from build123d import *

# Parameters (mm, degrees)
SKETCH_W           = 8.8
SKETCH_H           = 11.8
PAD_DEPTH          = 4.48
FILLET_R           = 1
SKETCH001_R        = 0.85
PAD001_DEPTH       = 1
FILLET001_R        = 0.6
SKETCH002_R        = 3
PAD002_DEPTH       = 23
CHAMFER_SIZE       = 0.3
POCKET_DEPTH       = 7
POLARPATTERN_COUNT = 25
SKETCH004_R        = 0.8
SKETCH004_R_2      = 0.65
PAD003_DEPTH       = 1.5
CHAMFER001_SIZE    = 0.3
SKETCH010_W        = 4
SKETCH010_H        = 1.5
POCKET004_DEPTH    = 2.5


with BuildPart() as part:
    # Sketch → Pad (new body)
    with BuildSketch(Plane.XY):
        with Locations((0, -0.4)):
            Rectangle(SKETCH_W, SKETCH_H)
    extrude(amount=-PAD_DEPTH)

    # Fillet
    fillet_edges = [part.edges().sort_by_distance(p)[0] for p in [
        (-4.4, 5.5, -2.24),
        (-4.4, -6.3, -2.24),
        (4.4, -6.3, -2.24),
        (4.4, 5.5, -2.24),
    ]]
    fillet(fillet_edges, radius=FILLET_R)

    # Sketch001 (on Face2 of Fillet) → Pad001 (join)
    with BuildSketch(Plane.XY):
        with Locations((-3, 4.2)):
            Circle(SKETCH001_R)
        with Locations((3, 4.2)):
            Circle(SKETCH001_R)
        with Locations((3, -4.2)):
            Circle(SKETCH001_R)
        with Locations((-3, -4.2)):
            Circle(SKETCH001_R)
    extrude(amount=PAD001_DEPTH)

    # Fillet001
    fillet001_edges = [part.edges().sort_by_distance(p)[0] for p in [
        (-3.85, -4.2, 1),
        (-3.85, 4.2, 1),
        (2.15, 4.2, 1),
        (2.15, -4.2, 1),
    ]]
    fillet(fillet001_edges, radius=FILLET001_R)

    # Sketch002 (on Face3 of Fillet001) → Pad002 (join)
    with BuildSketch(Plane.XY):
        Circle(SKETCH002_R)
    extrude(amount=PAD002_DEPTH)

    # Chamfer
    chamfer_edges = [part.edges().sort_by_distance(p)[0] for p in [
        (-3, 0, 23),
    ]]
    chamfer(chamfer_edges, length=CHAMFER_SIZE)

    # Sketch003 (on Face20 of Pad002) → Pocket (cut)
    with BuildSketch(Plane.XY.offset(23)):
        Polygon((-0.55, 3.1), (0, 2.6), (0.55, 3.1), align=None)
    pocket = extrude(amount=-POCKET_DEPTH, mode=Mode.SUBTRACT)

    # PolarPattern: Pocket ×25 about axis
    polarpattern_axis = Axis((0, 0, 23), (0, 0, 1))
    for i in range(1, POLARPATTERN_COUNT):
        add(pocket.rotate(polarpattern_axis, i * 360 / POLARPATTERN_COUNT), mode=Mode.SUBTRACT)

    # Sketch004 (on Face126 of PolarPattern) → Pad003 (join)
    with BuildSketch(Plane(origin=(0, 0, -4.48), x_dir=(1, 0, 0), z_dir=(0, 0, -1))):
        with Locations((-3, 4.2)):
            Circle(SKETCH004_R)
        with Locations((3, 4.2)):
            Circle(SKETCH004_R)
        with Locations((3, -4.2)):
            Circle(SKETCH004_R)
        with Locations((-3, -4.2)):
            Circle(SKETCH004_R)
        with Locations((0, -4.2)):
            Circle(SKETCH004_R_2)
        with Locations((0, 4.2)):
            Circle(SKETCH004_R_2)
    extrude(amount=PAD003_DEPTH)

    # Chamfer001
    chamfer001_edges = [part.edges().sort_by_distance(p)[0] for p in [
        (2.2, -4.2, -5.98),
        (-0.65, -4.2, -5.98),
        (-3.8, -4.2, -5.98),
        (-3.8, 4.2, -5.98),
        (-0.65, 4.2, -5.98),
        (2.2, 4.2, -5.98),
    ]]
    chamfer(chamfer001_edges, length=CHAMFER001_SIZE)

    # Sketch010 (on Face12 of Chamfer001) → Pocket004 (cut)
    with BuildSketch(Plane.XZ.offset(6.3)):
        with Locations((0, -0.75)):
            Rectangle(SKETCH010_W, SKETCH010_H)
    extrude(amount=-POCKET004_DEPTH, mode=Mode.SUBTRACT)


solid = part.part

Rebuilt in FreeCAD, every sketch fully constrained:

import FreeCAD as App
import Part
import Sketcher
from FreeCAD import Vector


def edges_at(feature, points):
    """Names of the edges that pass closest to the given points."""
    edges = feature.Shape.Edges
    near = lambda p: min(range(len(edges)), key=lambda i: edges[i].distToShape(Part.Vertex(*p))[0])
    return sorted({f"Edge{near(p) + 1}" for p in points})


def add_polygon(sketch, points):
    """Adds a closed chain of lines whose ends are joined by coincident constraints."""
    first, n = sketch.GeometryCount, len(points)
    for a, b in zip(points, points[1:] + points[:1]):
        sketch.addGeometry(Part.LineSegment(App.Vector(*a, 0), App.Vector(*b, 0)), False)
    for i in range(n):
        sketch.addConstraint(Sketcher.Constraint("Coincident", first + i, 2, first + (i + 1) % n, 1))

doc = App.newDocument("Part")
body = doc.addObject("PartDesign::Body", "Body")

# Sketch on XY plane
sketch1 = body.newObject("Sketcher::SketchObject", "Sketch")
sketch1.AttachmentSupport = (doc.getObject("XY_Plane"), [""])
sketch1.MapMode = "FlatFace"
add_polygon(sketch1, [(-4, 6), (-4, -6), (4, -6), (4, 6)])  # lines 0-3
sketch1.addConstraint(Sketcher.Constraint("Vertical", 0))
sketch1.addConstraint(Sketcher.Constraint("Horizontal", 1))
sketch1.addConstraint(Sketcher.Constraint("Vertical", 2))
sketch1.addConstraint(Sketcher.Constraint("Horizontal", 3))
sketch1.addConstraint(Sketcher.Constraint("DistanceX", 1, 1, 1, 2, 8.8))
sketch1.addConstraint(Sketcher.Constraint("DistanceY", 0, 2, 0, 1, 11.8))
sketch1.addConstraint(Sketcher.Constraint("DistanceX", 0, 2, -1, 1, 4.4))
sketch1.addConstraint(Sketcher.Constraint("DistanceY", 0, 2, -1, 1, 6.3))
pad1 = body.newObject("PartDesign::Pad", "Pad")
pad1.Profile = sketch1
pad1.Length = 4.48
pad1.Reversed = True
doc.recompute()

fillet = body.newObject("PartDesign::Fillet", "Fillet")
fillet.Base = (pad1, edges_at(pad1, [
    (-4.4, 5.5, -2.24),
    (-4.4, -6.3, -2.24),
    (4.4, -6.3, -2.24),
    (4.4, 5.5, -2.24),
]))
fillet.Radius = 1

# Sketch on XY plane
sketch2 = body.newObject("Sketcher::SketchObject", "Sketch001")
sketch2.AttachmentSupport = (doc.getObject("XY_Plane"), [""])
sketch2.MapMode = "FlatFace"
sketch2.addGeometry(Part.Circle(Vector(-3, 4.2, 0), Vector(0, 0, 1), 0.8), False)
sketch2.addGeometry(Part.Circle(Vector(3, 4.2, 0), Vector(0, 0, 1), 0.8), False)
sketch2.addGeometry(Part.Circle(Vector(3, -4.2, 0), Vector(0, 0, 1), 0.8), False)
sketch2.addGeometry(Part.Circle(Vector(-3, -4.2, 0), Vector(0, 0, 1), 0.8), False)
sketch2.addConstraint(Sketcher.Constraint("Equal", 0, 1))
sketch2.addConstraint(Sketcher.Constraint("Equal", 1, 2))
sketch2.addConstraint(Sketcher.Constraint("Equal", 2, 3))
sketch2.addConstraint(Sketcher.Constraint("Symmetric", 0, 3, 2, 3, -1, 1))
sketch2.addConstraint(Sketcher.Constraint("Symmetric", 1, 3, 3, 3, -1, 1))
sketch2.addConstraint(Sketcher.Constraint("Symmetric", 0, 3, 1, 3, -2))
sketch2.addConstraint(Sketcher.Constraint("Diameter", 0, 1.7))
sketch2.addConstraint(Sketcher.Constraint("DistanceX", 0, 3, -1, 1, 3.0))
sketch2.addConstraint(Sketcher.Constraint("DistanceY", -1, 1, 0, 3, 4.2))
pad2 = body.newObject("PartDesign::Pad", "Pad001")
pad2.Profile = sketch2
pad2.Length = 1
doc.recompute()

fillet2 = body.newObject("PartDesign::Fillet", "Fillet001")
fillet2.Base = (pad2, edges_at(pad2, [
    (-3.85, -4.2, 1),
    (-3.85, 4.2, 1),
    (2.15, 4.2, 1),
    (2.15, -4.2, 1),
]))
fillet2.Radius = 0.6

# Sketch on XY plane
sketch3 = body.newObject("Sketcher::SketchObject", "Sketch002")
sketch3.AttachmentSupport = (doc.getObject("XY_Plane"), [""])
sketch3.MapMode = "FlatFace"
sketch3.addGeometry(Part.Circle(Vector(0, 0, 0), Vector(0, 0, 1), 3), False)
sketch3.addConstraint(Sketcher.Constraint("Coincident", 0, 3, -1, 1))
sketch3.addConstraint(Sketcher.Constraint("Diameter", 0, 6.0))
pad3 = body.newObject("PartDesign::Pad", "Pad002")
pad3.Profile = sketch3
pad3.Length = 23
doc.recompute()

chamfer = body.newObject("PartDesign::Chamfer", "Chamfer")
chamfer.Base = (pad3, edges_at(pad3, [(-3, 0, 23)]))
chamfer.Size = 0.3

# Sketch on XY plane
sketch4 = body.newObject("Sketcher::SketchObject", "Sketch003")
sketch4.AttachmentSupport = (doc.getObject("XY_Plane"), [""])
sketch4.MapMode = "FlatFace"
sketch4.AttachmentOffset = App.Placement(Vector(0, 0, 23), App.Rotation())
add_polygon(sketch4, [(-0.6, 3.1), (0, 2.6), (0.6, 3.1)])  # lines 0-2
sketch4.addConstraint(Sketcher.Constraint("Horizontal", 2))
sketch4.addConstraint(Sketcher.Constraint("PointOnObject", 0, 2, -2))
sketch4.addConstraint(Sketcher.Constraint("Equal", 0, 1))
sketch4.addConstraint(Sketcher.Constraint("DistanceX", 2, 2, 2, 1, 1.1))
sketch4.addConstraint(Sketcher.Constraint("DistanceY", -1, 1, 0, 2, 2.6))
sketch4.addConstraint(Sketcher.Constraint("DistanceY", -1, 1, 1, 2, 3.1))
pocket1 = body.newObject("PartDesign::Pocket", "Pocket")
pocket1.Profile = sketch4
pocket1.Length = 7
doc.recompute()

polarpattern = body.newObject("PartDesign::PolarPattern", "PolarPattern")
polarpattern.Originals = [pocket1]
polarpattern.Axis = (doc.getObject("Z_Axis"), [""])
polarpattern.Angle = 360
polarpattern.Occurrences = 25
body.Tip = polarpattern

# Sketch on XY plane
sketch5 = body.newObject("Sketcher::SketchObject", "Sketch004")
sketch5.AttachmentSupport = (doc.getObject("XY_Plane"), [""])
sketch5.MapMode = "FlatFace"
sketch5.AttachmentOffset = App.Placement(Vector(0, 0, -4.48), App.Rotation())
sketch5.addGeometry(Part.Circle(Vector(-3, -4.2, 0), Vector(0, 0, 1), 0.8), False)
sketch5.addGeometry(Part.Circle(Vector(3, -4.2, 0), Vector(0, 0, 1), 0.8), False)
sketch5.addGeometry(Part.Circle(Vector(3, 4.2, 0), Vector(0, 0, 1), 0.8), False)
sketch5.addGeometry(Part.Circle(Vector(-3, 4.2, 0), Vector(0, 0, 1), 0.8), False)
sketch5.addGeometry(Part.Circle(Vector(0, 4.2, 0), Vector(0, 0, 1), 0.7), False)
sketch5.addGeometry(Part.Circle(Vector(0, -4.2, 0), Vector(0, 0, 1), 0.7), False)
sketch5.addConstraint(Sketcher.Constraint("Equal", 0, 1))
sketch5.addConstraint(Sketcher.Constraint("Equal", 1, 2))
sketch5.addConstraint(Sketcher.Constraint("Equal", 2, 3))
sketch5.addConstraint(Sketcher.Constraint("Equal", 4, 5))
sketch5.addConstraint(Sketcher.Constraint("Symmetric", 0, 3, 2, 3, -1, 1))
sketch5.addConstraint(Sketcher.Constraint("Symmetric", 1, 3, 3, 3, -1, 1))
sketch5.addConstraint(Sketcher.Constraint("Symmetric", 4, 3, 5, 3, -1, 1))
sketch5.addConstraint(Sketcher.Constraint("Symmetric", 0, 3, 1, 3, -2))
sketch5.addConstraint(Sketcher.Constraint("PointOnObject", 4, 3, -2))
sketch5.addConstraint(Sketcher.Constraint("Horizontal", 3, 3, 4, 3))
sketch5.addConstraint(Sketcher.Constraint("Diameter", 0, 1.6))
sketch5.addConstraint(Sketcher.Constraint("Diameter", 4, 1.3))
sketch5.addConstraint(Sketcher.Constraint("DistanceX", 0, 3, -1, 1, 3.0))
sketch5.addConstraint(Sketcher.Constraint("DistanceY", 0, 3, -1, 1, 4.2))
pad4 = body.newObject("PartDesign::Pad", "Pad003")
pad4.Profile = sketch5
pad4.Length = 1.5
pad4.Reversed = True
doc.recompute()

chamfer2 = body.newObject("PartDesign::Chamfer", "Chamfer001")
chamfer2.Base = (pad4, edges_at(pad4, [
    (2.2, -4.2, -5.98),
    (-0.65, -4.2, -5.98),
    (-3.8, -4.2, -5.98),
    (-3.8, 4.2, -5.98),
    (-0.65, 4.2, -5.98),
    (2.2, 4.2, -5.98),
]))
chamfer2.Size = 0.3

# Sketch on XZ plane
sketch6 = body.newObject("Sketcher::SketchObject", "Sketch005")
sketch6.AttachmentSupport = (doc.getObject("XZ_Plane"), [""])
sketch6.MapMode = "FlatFace"
sketch6.AttachmentOffset = App.Placement(Vector(0, 0, 6.3), App.Rotation())
add_polygon(sketch6, [(-2, 0), (-2, -1.5), (2, -1.5), (2, 0)])  # lines 0-3
sketch6.addConstraint(Sketcher.Constraint("Vertical", 0))
sketch6.addConstraint(Sketcher.Constraint("Horizontal", 1))
sketch6.addConstraint(Sketcher.Constraint("Vertical", 2))
sketch6.addConstraint(Sketcher.Constraint("Horizontal", 3))
sketch6.addConstraint(Sketcher.Constraint("Symmetric", 2, 2, 3, 2, -1, 1))
sketch6.addConstraint(Sketcher.Constraint("DistanceX", 1, 1, 1, 2, 4.0))
sketch6.addConstraint(Sketcher.Constraint("DistanceY", 0, 2, 0, 1, 1.5))
pocket2 = body.newObject("PartDesign::Pocket", "Pocket001")
pocket2.Profile = sketch6
pocket2.Length = 2.5

doc.recompute()
